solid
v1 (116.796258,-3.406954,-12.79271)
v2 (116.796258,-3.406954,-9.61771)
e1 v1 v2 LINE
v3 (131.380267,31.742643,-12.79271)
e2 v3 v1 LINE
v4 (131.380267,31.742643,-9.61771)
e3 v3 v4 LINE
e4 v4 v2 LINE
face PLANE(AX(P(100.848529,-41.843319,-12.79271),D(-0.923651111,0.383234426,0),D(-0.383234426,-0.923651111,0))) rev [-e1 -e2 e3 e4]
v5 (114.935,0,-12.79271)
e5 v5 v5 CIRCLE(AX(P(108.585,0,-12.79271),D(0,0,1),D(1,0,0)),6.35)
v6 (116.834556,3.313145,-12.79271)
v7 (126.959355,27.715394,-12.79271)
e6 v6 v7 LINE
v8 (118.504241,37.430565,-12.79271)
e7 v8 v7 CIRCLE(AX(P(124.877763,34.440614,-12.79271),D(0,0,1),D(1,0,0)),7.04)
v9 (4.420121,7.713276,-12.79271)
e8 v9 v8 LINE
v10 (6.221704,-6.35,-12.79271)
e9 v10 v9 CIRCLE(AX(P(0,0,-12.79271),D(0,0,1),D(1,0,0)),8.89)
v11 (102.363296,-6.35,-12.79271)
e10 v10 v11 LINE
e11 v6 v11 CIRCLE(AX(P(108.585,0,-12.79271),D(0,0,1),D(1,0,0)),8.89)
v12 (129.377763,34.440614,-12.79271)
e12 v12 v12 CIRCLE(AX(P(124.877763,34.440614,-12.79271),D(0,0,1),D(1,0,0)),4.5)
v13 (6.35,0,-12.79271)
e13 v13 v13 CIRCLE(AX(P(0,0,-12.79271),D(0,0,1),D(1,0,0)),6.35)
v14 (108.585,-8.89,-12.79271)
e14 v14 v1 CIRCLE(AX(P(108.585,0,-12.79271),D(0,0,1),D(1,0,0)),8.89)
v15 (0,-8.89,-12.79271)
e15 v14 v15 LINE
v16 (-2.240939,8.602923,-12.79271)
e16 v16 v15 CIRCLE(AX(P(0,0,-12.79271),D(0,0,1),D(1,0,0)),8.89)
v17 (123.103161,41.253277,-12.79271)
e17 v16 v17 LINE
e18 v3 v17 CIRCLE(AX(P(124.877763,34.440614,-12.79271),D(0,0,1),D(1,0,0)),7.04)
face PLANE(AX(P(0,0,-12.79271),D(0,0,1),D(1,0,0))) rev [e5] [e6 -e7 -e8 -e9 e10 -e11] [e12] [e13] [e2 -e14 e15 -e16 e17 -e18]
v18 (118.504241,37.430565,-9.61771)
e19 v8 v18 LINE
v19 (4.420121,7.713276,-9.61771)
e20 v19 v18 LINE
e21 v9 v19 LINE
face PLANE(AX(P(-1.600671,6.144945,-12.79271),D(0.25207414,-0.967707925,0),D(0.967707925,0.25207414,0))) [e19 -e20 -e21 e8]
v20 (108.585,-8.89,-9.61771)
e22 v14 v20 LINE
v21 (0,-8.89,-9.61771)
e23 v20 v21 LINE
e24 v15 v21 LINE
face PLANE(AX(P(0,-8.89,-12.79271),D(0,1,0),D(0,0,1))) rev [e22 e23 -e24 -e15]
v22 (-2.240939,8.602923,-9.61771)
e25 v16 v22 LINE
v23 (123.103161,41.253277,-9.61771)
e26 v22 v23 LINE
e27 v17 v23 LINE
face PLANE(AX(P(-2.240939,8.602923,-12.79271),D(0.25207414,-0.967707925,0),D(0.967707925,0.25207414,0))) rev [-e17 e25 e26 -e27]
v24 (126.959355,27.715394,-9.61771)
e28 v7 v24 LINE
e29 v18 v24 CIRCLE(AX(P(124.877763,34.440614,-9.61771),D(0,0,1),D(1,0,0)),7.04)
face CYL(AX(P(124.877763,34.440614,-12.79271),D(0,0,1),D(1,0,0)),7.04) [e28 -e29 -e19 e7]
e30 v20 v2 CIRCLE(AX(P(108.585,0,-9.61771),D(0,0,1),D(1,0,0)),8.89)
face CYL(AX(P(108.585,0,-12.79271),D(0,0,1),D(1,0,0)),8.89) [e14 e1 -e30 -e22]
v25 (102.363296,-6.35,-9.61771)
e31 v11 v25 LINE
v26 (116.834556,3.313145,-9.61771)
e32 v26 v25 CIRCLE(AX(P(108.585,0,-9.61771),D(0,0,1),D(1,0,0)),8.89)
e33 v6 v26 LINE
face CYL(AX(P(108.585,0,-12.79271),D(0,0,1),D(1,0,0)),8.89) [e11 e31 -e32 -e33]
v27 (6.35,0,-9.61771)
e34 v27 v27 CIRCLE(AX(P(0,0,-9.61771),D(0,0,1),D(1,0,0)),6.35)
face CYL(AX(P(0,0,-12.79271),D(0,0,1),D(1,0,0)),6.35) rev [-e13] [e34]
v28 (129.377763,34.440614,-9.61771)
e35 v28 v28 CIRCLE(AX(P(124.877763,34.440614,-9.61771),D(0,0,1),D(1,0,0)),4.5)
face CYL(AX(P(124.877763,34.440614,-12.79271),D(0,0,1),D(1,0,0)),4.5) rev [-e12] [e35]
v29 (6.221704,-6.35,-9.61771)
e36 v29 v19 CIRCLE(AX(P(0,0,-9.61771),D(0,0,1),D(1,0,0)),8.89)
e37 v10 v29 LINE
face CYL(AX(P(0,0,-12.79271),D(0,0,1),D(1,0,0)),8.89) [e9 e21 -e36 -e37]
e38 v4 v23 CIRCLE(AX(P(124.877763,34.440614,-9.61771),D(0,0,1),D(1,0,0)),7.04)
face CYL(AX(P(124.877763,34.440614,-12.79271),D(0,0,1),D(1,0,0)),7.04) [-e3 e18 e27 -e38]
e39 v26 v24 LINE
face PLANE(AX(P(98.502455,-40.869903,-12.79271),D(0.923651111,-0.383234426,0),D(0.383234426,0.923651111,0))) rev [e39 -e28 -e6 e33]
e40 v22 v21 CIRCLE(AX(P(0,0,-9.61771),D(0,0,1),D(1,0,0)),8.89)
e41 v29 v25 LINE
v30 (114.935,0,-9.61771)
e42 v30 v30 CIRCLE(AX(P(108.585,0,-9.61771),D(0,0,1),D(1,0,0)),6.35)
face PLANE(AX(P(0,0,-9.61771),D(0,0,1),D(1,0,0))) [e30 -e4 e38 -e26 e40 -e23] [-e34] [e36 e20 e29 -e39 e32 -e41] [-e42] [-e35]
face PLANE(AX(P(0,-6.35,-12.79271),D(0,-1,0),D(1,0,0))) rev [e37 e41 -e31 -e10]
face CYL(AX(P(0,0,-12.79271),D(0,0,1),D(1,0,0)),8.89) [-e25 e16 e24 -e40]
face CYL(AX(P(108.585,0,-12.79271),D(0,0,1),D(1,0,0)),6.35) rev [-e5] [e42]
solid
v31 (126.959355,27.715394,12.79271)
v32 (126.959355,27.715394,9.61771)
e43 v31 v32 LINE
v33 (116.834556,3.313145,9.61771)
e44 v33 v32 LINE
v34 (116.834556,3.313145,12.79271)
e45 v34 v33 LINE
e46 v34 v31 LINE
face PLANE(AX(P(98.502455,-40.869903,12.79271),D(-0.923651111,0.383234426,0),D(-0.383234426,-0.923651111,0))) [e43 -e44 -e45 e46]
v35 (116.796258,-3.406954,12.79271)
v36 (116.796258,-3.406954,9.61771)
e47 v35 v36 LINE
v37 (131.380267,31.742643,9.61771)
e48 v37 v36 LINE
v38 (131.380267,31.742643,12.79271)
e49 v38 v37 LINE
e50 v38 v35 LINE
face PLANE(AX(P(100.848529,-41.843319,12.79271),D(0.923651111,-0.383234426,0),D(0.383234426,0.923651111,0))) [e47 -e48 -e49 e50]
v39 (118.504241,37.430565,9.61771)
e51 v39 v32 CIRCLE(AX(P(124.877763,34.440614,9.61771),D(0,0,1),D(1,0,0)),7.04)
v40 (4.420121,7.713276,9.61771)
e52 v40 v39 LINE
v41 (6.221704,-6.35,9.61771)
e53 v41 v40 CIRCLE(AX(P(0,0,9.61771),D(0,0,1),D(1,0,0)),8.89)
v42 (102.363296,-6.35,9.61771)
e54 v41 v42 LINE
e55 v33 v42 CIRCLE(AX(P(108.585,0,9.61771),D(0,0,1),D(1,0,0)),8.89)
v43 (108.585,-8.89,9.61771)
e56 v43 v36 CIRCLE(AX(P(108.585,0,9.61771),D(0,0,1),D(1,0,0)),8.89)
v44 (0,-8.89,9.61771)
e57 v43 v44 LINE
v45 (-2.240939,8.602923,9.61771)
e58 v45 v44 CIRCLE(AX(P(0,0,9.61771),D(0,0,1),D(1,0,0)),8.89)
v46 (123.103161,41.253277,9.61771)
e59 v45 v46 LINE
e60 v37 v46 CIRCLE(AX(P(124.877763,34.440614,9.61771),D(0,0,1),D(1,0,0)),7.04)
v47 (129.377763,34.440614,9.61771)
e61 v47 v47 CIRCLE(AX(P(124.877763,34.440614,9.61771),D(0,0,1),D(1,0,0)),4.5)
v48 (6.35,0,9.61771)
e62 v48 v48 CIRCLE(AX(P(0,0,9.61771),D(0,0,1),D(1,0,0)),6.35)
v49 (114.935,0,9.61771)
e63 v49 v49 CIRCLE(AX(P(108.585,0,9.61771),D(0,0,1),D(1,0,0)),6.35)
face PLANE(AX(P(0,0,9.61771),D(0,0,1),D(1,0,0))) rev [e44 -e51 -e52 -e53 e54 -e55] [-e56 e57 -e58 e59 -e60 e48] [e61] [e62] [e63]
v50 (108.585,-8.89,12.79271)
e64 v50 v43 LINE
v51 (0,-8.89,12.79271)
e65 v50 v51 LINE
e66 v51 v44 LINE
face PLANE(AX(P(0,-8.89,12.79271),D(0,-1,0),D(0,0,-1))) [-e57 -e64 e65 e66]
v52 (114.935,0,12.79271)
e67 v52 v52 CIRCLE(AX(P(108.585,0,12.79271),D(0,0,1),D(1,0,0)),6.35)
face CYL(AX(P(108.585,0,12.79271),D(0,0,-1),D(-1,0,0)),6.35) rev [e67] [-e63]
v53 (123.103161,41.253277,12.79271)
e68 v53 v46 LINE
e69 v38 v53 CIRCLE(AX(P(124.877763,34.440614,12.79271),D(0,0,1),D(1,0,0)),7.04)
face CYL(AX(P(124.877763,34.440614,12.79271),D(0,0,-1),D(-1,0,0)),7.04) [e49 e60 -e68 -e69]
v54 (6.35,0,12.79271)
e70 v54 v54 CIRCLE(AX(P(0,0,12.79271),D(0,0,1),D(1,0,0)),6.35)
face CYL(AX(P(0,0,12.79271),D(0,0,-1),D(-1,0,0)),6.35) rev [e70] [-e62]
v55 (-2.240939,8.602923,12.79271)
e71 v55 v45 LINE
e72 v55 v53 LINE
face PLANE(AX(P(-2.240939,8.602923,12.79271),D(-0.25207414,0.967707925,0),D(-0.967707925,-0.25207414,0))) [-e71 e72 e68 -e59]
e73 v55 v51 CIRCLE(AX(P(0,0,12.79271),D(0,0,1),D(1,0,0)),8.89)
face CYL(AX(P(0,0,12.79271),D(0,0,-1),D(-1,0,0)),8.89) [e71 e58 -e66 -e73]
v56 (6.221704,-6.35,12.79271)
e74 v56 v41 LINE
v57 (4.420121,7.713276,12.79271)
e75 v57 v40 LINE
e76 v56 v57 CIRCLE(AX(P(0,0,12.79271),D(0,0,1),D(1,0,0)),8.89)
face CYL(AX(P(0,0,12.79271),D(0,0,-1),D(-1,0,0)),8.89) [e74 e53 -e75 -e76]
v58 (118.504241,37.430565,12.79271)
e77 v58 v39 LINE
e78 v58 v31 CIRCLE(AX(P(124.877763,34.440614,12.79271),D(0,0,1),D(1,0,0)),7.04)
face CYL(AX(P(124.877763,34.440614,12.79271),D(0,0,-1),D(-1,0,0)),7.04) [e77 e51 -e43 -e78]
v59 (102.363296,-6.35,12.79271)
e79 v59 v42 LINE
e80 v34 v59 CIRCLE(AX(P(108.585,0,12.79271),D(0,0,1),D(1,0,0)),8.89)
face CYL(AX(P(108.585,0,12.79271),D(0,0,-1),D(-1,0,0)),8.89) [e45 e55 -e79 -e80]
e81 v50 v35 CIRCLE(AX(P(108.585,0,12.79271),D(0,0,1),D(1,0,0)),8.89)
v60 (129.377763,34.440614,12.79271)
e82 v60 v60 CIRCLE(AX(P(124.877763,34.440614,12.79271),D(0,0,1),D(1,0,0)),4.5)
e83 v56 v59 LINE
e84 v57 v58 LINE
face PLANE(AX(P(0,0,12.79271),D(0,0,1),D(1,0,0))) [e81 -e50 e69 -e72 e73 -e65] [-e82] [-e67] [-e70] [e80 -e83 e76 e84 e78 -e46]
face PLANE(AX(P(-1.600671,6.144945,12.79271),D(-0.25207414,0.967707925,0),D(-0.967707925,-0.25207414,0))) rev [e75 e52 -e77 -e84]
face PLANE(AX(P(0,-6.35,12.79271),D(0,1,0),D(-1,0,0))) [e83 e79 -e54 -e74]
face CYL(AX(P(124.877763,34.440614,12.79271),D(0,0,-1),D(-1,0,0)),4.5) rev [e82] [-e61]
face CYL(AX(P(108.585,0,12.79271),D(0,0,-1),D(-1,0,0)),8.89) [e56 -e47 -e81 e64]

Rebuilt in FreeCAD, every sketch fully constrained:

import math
import FreeCAD as App
import Part
import Sketcher

V = App.Vector
Q = App.Units.Quantity

doc = App.newDocument("Part")
body = doc.addObject("PartDesign::Body", "Body")

# Sketch on XY plane
sketch1 = body.newObject("Sketcher::SketchObject", "Sketch")
sketch1.AttachmentSupport = (doc.getObject("XY_Plane"), [""])
sketch1.MapMode = "FlatFace"
sketch1.AttachmentOffset = App.Placement(V(0, 0, 9.61771), App.Rotation())
sketch1.addGeometry([
    Part.ArcOfCircle(Part.Circle(V(124.9, 34.4, 0), V(0, 0, 1), 7), math.radians(0), math.radians(105)),  # 0
    Part.LineSegment(V(123.1, 41.3, 0), V(-2.2, 8.6, 0)),  # 1
    Part.ArcOfCircle(Part.Circle(V(0, 0, 0), V(0, 0, 1), 8.9), math.radians(105), math.radians(270)),  # 2
    Part.LineSegment(V(0, -8.9, 0), V(108.6, -8.9, 0)),  # 3
    Part.ArcOfCircle(Part.Circle(V(108.6, 0, 0), V(0, 0, 1), 8.9), math.radians(-90), math.radians(-23)),  # 4
    Part.LineSegment(V(116.8, -3.4, 0), V(131.4, 31.7, 0)),  # 5
    Part.ArcOfCircle(Part.Circle(V(124.9, 34.4, 0), V(0, 0, 1), 7), math.radians(-23), math.radians(0)),  # 6
    Part.ArcOfCircle(Part.Circle(V(0, 0, 0), V(0, 0, 1), 6.3), math.radians(105), math.radians(270)),  # 7
    Part.ArcOfCircle(Part.Circle(V(0, 0, 0), V(0, 0, 1), 6.3), math.radians(0), math.radians(105)),  # 8
    Part.ArcOfCircle(Part.Circle(V(0, 0, 0), V(0, 0, 1), 6.3), math.radians(-90), math.radians(0)),  # 9
    Part.ArcOfCircle(Part.Circle(V(108.6, 0, 0), V(0, 0, 1), 6.4), math.radians(-23), math.radians(0)),  # 10
    Part.ArcOfCircle(Part.Circle(V(108.6, 0, 0), V(0, 0, 1), 6.4), math.radians(-90), math.radians(-23)),  # 11
    Part.ArcOfCircle(Part.Circle(V(108.6, 0, 0), V(0, 0, 1), 6.3), math.radians(0), math.radians(270)),  # 12
    Part.ArcOfCircle(Part.Circle(V(124.9, 34.4, 0), V(0, 0, 1), 4.5), math.radians(0), math.radians(105)),  # 13
    Part.ArcOfCircle(Part.Circle(V(124.9, 34.4, 0), V(0, 0, 1), 4.5), math.radians(-23), math.radians(0)),  # 14
    Part.ArcOfCircle(Part.Circle(V(124.9, 34.4, 0), V(0, 0, 1), 4.5), math.radians(105), math.radians(337)),  # 15
    Part.LineSegment(V(4.4, 7.7, 0), V(118.5, 37.4, 0)),  # 16
    Part.ArcOfCircle(Part.Circle(V(124.9, 34.4, 0), V(0, 0, 1), 7), math.radians(155), math.radians(287)),  # 17
    Part.LineSegment(V(127, 27.7, 0), V(116.8, 3.3, 0)),  # 18
    Part.ArcOfCircle(Part.Circle(V(108.6, 0, 0), V(0, 0, 1), 8.9), math.radians(22), math.radians(226)),  # 19
    Part.LineSegment(V(102.4, -6.3, 0), V(6.2, -6.3, 0)),  # 20
    Part.ArcOfCircle(Part.Circle(V(0, 0, 0), V(0, 0, 1), 8.9), math.radians(-46), math.radians(0)),  # 21
    Part.ArcOfCircle(Part.Circle(V(0, 0, 0), V(0, 0, 1), 8.9), math.radians(0), math.radians(60)),  # 22
], False)
sketch1.addConstraint([
    Sketcher.Constraint("Tangent", 0, 2, 1, 1),
    Sketcher.Constraint("Tangent", 1, 2, 2, 1),
    Sketcher.Constraint("Tangent", 2, 2, 3, 1),
    Sketcher.Constraint("Tangent", 3, 2, 4, 1),
    Sketcher.Constraint("Tangent", 4, 2, 5, 1),
    Sketcher.Constraint("Tangent", 5, 2, 6, 1),
    Sketcher.Constraint("Tangent", 6, 2, 0, 1),
    Sketcher.Constraint("Tangent", 7, 1, 8, 2),
    Sketcher.Constraint("Tangent", 8, 1, 9, 2),
    Sketcher.Constraint("Tangent", 9, 1, 7, 2),
    Sketcher.Constraint("Tangent", 10, 1, 11, 2),
    Sketcher.Constraint("Tangent", 11, 1, 12, 2),
    Sketcher.Constraint("Tangent", 12, 1, 10, 2),
    Sketcher.Constraint("Tangent", 13, 1, 14, 2),
    Sketcher.Constraint("Tangent", 14, 1, 15, 2),
    Sketcher.Constraint("Tangent", 15, 1, 13, 2),
    Sketcher.Constraint("Coincident", 16, 2, 17, 1),
    Sketcher.Constraint("Coincident", 17, 2, 18, 1),
    Sketcher.Constraint("Coincident", 18, 2, 19, 1),
    Sketcher.Constraint("Coincident", 19, 2, 20, 1),
    Sketcher.Constraint("Coincident", 20, 2, 21, 1),
    Sketcher.Constraint("Tangent", 21, 2, 22, 1),
    Sketcher.Constraint("Coincident", 22, 2, 16, 1),
    Sketcher.Constraint("Horizontal", 3),
    Sketcher.Constraint("Horizontal", 20),
    Sketcher.Constraint("Coincident", 2, 3, -1, 1),
    Sketcher.Constraint("Coincident", 7, 3, -1, 1),
    Sketcher.Constraint("Coincident", 21, 3, -1, 1),
    Sketcher.Constraint("Coincident", 10, 3, 4, 3),
    Sketcher.Constraint("Coincident", 13, 3, 0, 3),
    Sketcher.Constraint("Coincident", 17, 3, 0, 3),
    Sketcher.Constraint("Coincident", 19, 3, 4, 3),
    Sketcher.Constraint("Equal", 2, 4),
    Sketcher.Constraint("Equal", 0, 6),
    Sketcher.Constraint("Equal", 9, 10),
    Sketcher.Constraint("Equal", 6, 17),
    Sketcher.Constraint("Equal", 4, 19),
    Sketcher.Constraint("Equal", 19, 21),
    Sketcher.Constraint("Equal", 21, 22),
    Sketcher.Constraint("PointOnObject", 8, 1, -1),
    Sketcher.Constraint("PointOnObject", 9, 1, -2),
    Sketcher.Constraint("PointOnObject", 12, 1, -1),
    Sketcher.Constraint("PointOnObject", 21, 2, -1),
    Sketcher.Constraint("Parallel", 1, 16),
    Sketcher.Constraint("Parallel", 5, 18),
    Sketcher.Constraint("Horizontal", 17, 3, 6, 2),
    Sketcher.Constraint("Horizontal", 6, 2, 13, 1),
    Sketcher.Constraint("Horizontal", 11, 1, 19, 2),
    Sketcher.Constraint("Vertical", 3, 2, 11, 1),
    Sketcher.Constraint("Radius", 2, Q("0.35 in")),
    Sketcher.Constraint("Radius", 7, Q("0.25 in")),
    Sketcher.Constraint("DistanceX", 13, 1, 6, 2, Q("0.1 in")),
    Sketcher.Constraint("DistanceX", 3, 1, 3, 2, Q("4.275 in")),
    Sketcher.Constraint("Radius", 0, 7.04),
    Sketcher.Constraint("DistanceY", -1, 1, 15, 1, 38.795299),
    Sketcher.Constraint("DistanceX", 0, 2, 14, 3, 1.774602),
    Sketcher.Constraint("DistanceY", 4, 2, 18, 2, 6.720099),
    Sketcher.Constraint("Distance", 1, 129.526789),
    Sketcher.Constraint("DistanceX", 7, 1, -1, 1, 1.600671),
    Sketcher.Constraint("DistanceY", 10, 1, -1, 1, 2.433539),
    Sketcher.Constraint("DistanceY", -1, 1, 14, 1, 32.716059),
    Sketcher.Constraint("DistanceX", -1, 1, 16, 2, 118.504241),
])
pad1 = body.newObject("PartDesign::Pad", "Pad")
pad1.Profile = sketch1
pad1.Length = Q("0.125 in")
body2 = doc.addObject("PartDesign::Body", "Body001")

# Sketch on XY plane
sketch2 = body2.newObject("Sketcher::SketchObject", "Sketch001")
sketch2.AttachmentSupport = (doc.getObject("XY_Plane001"), [""])
sketch2.MapMode = "FlatFace"
sketch2.AttachmentOffset = App.Placement(V(0, 0, -9.61771), App.Rotation())
sketch2.addGeometry([
    Part.LineSegment(V(116.8, -3.4, 0), V(131.4, 31.7, 0)),  # 0
    Part.ArcOfCircle(Part.Circle(V(124.9, 34.4, 0), V(0, 0, 1), 7), math.radians(-23), math.radians(0)),  # 1
    Part.ArcOfCircle(Part.Circle(V(124.9, 34.4, 0), V(0, 0, 1), 7), math.radians(0), math.radians(105)),  # 2
    Part.LineSegment(V(123.1, 41.3, 0), V(-2.2, 8.6, 0)),  # 3
    Part.ArcOfCircle(Part.Circle(V(0, 0, 0), V(0, 0, 1), 8.9), math.radians(105), math.radians(270)),  # 4
    Part.LineSegment(V(0, -8.9, 0), V(108.6, -8.9, 0)),  # 5
    Part.ArcOfCircle(Part.Circle(V(108.6, 0, 0), V(0, 0, 1), 8.9), math.radians(-90), math.radians(-23)),  # 6
    Part.ArcOfCircle(Part.Circle(V(0, 0, 0), V(0, 0, 1), 6.3), math.radians(105), math.radians(270)),  # 7
    Part.ArcOfCircle(Part.Circle(V(0, 0, 0), V(0, 0, 1), 6.3), math.radians(0), math.radians(105)),  # 8
    Part.ArcOfCircle(Part.Circle(V(0, 0, 0), V(0, 0, 1), 6.3), math.radians(-90), math.radians(0)),  # 9
    Part.ArcOfCircle(Part.Circle(V(108.6, 0, 0), V(0, 0, 1), 6.4), math.radians(-90), math.radians(-23)),  # 10
    Part.ArcOfCircle(Part.Circle(V(108.6, 0, 0), V(0, 0, 1), 6.3), math.radians(0), math.radians(270)),  # 11
    Part.ArcOfCircle(Part.Circle(V(108.6, 0, 0), V(0, 0, 1), 6.4), math.radians(-23), math.radians(0)),  # 12
    Part.ArcOfCircle(Part.Circle(V(108.6, 0, 0), V(0, 0, 1), 8.9), math.radians(22), math.radians(226)),  # 13
    Part.LineSegment(V(102.4, -6.3, 0), V(6.2, -6.3, 0)),  # 14
    Part.ArcOfCircle(Part.Circle(V(0, 0, 0), V(0, 0, 1), 8.9), math.radians(-46), math.radians(0)),  # 15
    Part.ArcOfCircle(Part.Circle(V(0, 0, 0), V(0, 0, 1), 8.9), math.radians(0), math.radians(60)),  # 16
    Part.LineSegment(V(4.4, 7.7, 0), V(118.5, 37.4, 0)),  # 17
    Part.ArcOfCircle(Part.Circle(V(124.9, 34.4, 0), V(0, 0, 1), 7), math.radians(155), math.radians(287)),  # 18
    Part.LineSegment(V(127, 27.7, 0), V(116.8, 3.3, 0)),  # 19
    Part.ArcOfCircle(Part.Circle(V(124.9, 34.4, 0), V(0, 0, 1), 4.5), math.radians(-23), math.radians(0)),  # 20
    Part.ArcOfCircle(Part.Circle(V(124.9, 34.4, 0), V(0, 0, 1), 4.5), math.radians(105), math.radians(337)),  # 21
    Part.ArcOfCircle(Part.Circle(V(124.9, 34.4, 0), V(0, 0, 1), 4.5), math.radians(0), math.radians(105)),  # 22
], False)
sketch2.addConstraint([
    Sketcher.Constraint("Tangent", 0, 2, 1, 1),
    Sketcher.Constraint("Tangent", 1, 2, 2, 1),
    Sketcher.Constraint("Tangent", 2, 2, 3, 1),
    Sketcher.Constraint("Tangent", 3, 2, 4, 1),
    Sketcher.Constraint("Tangent", 4, 2, 5, 1),
    Sketcher.Constraint("Tangent", 5, 2, 6, 1),
    Sketcher.Constraint("Tangent", 6, 2, 0, 1),
    Sketcher.Constraint("Tangent", 7, 1, 8, 2),
    Sketcher.Constraint("Tangent", 8, 1, 9, 2),
    Sketcher.Constraint("Tangent", 9, 1, 7, 2),
    Sketcher.Constraint("Tangent", 10, 1, 11, 2),
    Sketcher.Constraint("Tangent", 11, 1, 12, 2),
    Sketcher.Constraint("Tangent", 12, 1, 10, 2),
    Sketcher.Constraint("Coincident", 13, 2, 14, 1),
    Sketcher.Constraint("Coincident", 14, 2, 15, 1),
    Sketcher.Constraint("Tangent", 15, 2, 16, 1),
    Sketcher.Constraint("Coincident", 16, 2, 17, 1),
    Sketcher.Constraint("Coincident", 17, 2, 18, 1),
    Sketcher.Constraint("Coincident", 18, 2, 19, 1),
    Sketcher.Constraint("Coincident", 19, 2, 13, 1),
    Sketcher.Constraint("Tangent", 20, 1, 21, 2),
    Sketcher.Constraint("Tangent", 21, 1, 22, 2),
    Sketcher.Constraint("Tangent", 22, 1, 20, 2),
    Sketcher.Constraint("Horizontal", 5),
    Sketcher.Constraint("Horizontal", 14),
    Sketcher.Constraint("Coincident", 4, 3, -1, 1),
    Sketcher.Constraint("Coincident", 7, 3, -1, 1),
    Sketcher.Constraint("Coincident", 15, 3, -1, 1),
    Sketcher.Constraint("Coincident", 10, 3, 6, 3),
    Sketcher.Constraint("Coincident", 13, 3, 6, 3),
    Sketcher.Constraint("Coincident", 18, 3, 1, 3),
    Sketcher.Constraint("Coincident", 20, 3, 1, 3),
    Sketcher.Constraint("Equal", 1, 2),
    Sketcher.Constraint("Equal", 4, 6),
    Sketcher.Constraint("Equal", 9, 10),
    Sketcher.Constraint("Equal", 6, 13),
    Sketcher.Constraint("Equal", 13, 15),
    Sketcher.Constraint("Equal", 15, 16),
    Sketcher.Constraint("Equal", 2, 18),
    Sketcher.Constraint("PointOnObject", 8, 1, -1),
    Sketcher.Constraint("PointOnObject", 9, 1, -2),
    Sketcher.Constraint("PointOnObject", 11, 1, -1),
    Sketcher.Constraint("PointOnObject", 15, 2, -1),
    Sketcher.Constraint("Parallel", 3, 17),
    Sketcher.Constraint("Parallel", 0, 19),
    Sketcher.Constraint("Horizontal", 22, 3, 1, 2),
    Sketcher.Constraint("Horizontal", 10, 1, 13, 2),
    Sketcher.Constraint("Horizontal", 1, 2, 22, 1),
    Sketcher.Constraint("Vertical", 5, 2, 10, 1),
    Sketcher.Constraint("Radius", 4, Q("0.35 in")),
    Sketcher.Constraint("Radius", 7, Q("0.25 in")),
    Sketcher.Constraint("DistanceX", 22, 1, 1, 2, Q("0.1 in")),
    Sketcher.Constraint("DistanceX", 5, 1, 5, 2, Q("4.275 in")),
    Sketcher.Constraint("Radius", 1, 7.04),
    Sketcher.Constraint("DistanceY", -1, 1, 21, 1, 38.795299),
    Sketcher.Constraint("DistanceX", 2, 2, 20, 3, 1.774602),
    Sketcher.Constraint("DistanceY", 6, 2, 19, 2, 6.720099),
    Sketcher.Constraint("Distance", 0, 38.055059),
    Sketcher.Constraint("DistanceX", 7, 1, -1, 1, 1.600671),
    Sketcher.Constraint("DistanceY", 12, 1, -1, 1, 2.433539),
    Sketcher.Constraint("DistanceX", -1, 1, 16, 2, 4.420121),
    Sketcher.Constraint("DistanceY", -1, 1, 20, 1, 32.716059),
])
pad2 = body2.newObject("PartDesign::Pad", "Pad001")
pad2.Profile = sketch2
pad2.Length = Q("0.125 in")
pad2.Reversed = True

doc.recompute()
